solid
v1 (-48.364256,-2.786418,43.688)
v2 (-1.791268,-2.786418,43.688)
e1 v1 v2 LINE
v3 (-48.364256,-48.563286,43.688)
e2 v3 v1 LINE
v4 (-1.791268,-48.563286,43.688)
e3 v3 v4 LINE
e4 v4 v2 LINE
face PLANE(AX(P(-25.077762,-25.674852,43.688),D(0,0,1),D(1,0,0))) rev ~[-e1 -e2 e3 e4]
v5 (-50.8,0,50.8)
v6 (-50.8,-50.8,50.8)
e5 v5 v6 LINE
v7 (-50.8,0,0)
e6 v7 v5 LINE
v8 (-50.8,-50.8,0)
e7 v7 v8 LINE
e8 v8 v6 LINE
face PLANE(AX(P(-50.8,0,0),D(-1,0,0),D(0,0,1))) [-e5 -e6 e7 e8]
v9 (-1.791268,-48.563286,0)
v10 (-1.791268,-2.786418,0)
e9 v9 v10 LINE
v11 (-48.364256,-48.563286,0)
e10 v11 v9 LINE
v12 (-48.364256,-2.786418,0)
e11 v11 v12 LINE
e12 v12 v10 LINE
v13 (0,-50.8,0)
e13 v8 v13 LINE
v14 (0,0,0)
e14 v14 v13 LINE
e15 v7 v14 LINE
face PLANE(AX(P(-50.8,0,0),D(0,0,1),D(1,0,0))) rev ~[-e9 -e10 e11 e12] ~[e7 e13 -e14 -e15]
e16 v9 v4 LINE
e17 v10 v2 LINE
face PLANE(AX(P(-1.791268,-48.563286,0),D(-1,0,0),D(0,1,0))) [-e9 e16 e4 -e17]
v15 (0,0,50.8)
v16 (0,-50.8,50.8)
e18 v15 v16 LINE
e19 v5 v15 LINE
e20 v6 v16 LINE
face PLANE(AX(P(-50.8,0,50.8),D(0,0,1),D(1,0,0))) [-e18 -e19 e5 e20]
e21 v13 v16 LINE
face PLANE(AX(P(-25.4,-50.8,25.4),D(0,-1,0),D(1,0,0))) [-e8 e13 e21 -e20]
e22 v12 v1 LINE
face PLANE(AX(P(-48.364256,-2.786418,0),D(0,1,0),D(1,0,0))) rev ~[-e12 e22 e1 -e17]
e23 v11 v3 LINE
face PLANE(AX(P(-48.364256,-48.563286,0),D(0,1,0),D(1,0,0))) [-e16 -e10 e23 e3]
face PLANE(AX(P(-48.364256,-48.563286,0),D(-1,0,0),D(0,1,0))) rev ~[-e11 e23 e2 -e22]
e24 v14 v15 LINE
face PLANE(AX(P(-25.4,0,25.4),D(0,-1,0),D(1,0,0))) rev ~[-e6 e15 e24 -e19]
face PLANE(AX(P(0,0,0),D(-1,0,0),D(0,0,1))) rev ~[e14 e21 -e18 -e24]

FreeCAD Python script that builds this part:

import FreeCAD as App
import Part
import Sketcher

V = App.Vector
Q = App.Units.Quantity

doc = App.newDocument("Part")
body = doc.addObject("PartDesign::Body", "Body")

# Sketch on XZ plane
sketch1 = doc.addObject("Sketcher::SketchObject", "Sketch")
body.addObject(sketch1)
sketch1.AttachmentSupport = (doc.XZ_Plane, [""])
sketch1.MapMode = "FlatFace"
sketch1.addGeometry([
    Part.LineSegment(V(-51, 51, 0), V(-51, 0, 0)),
    Part.LineSegment(V(-51, 0, 0), V(0, 0, 0)),
    Part.LineSegment(V(0, 0, 0), V(0, 51, 0)),
    Part.LineSegment(V(0, 51, 0), V(-51, 51, 0)),
], False)
sketch1.addConstraint([
    Sketcher.Constraint("Coincident", 0, 2, 1, 1),
    Sketcher.Constraint("Coincident", 1, 2, 2, 1),
    Sketcher.Constraint("Coincident", 2, 2, 3, 1),
    Sketcher.Constraint("Coincident", 3, 2, 0, 1),
    Sketcher.Constraint("Vertical", 0),
    Sketcher.Constraint("Horizontal", 1),
    Sketcher.Constraint("Vertical", 2),
    Sketcher.Constraint("Horizontal", 3),
    Sketcher.Constraint("Coincident", 1, 2, -1, 1),
    Sketcher.Constraint("Equal", 3, 0),
    Sketcher.Constraint("DistanceX", 1, 1, 1, 2, Q("2 in")),
])
pad1 = doc.addObject("PartDesign::Pad", "Pad")
body.addObject(pad1)
pad1.Profile = sketch1
pad1.Length = Q("2 in")

# Sketch on XY plane
sketch2 = doc.addObject("Sketcher::SketchObject", "Sketch001")
body.addObject(sketch2)
sketch2.AttachmentSupport = (doc.XY_Plane, [""])
sketch2.MapMode = "FlatFace"
sketch2.addGeometry([
    Part.LineSegment(V(-48, -3, 0), V(-48, -49, 0)),
    Part.LineSegment(V(-48, -49, 0), V(-2, -49, 0)),
    Part.LineSegment(V(-2, -49, 0), V(-2, -3, 0)),
    Part.LineSegment(V(-2, -3, 0), V(-48, -3, 0)),
], False)
sketch2.addConstraint([
    Sketcher.Constraint("Coincident", 0, 2, 1, 1),
    Sketcher.Constraint("Coincident", 1, 2, 2, 1),
    Sketcher.Constraint("Coincident", 2, 2, 3, 1),
    Sketcher.Constraint("Coincident", 3, 2, 0, 1),
    Sketcher.Constraint("Vertical", 0),
    Sketcher.Constraint("Horizontal", 1),
    Sketcher.Constraint("Vertical", 2),
    Sketcher.Constraint("Horizontal", 3),
    Sketcher.Constraint("DistanceY", 0, 2, 0, 1, 45.776869),
    Sketcher.Constraint("DistanceX", 1, 1, 1, 2, 46.572988),
    Sketcher.Constraint("DistanceX", 1, 2, -1, 1, 1.791268),
    Sketcher.Constraint("DistanceY", 0, 2, -1, 1, 48.563286),
])
pocket1 = doc.addObject("PartDesign::Pocket", "Pocket")
body.addObject(pocket1)
pocket1.Profile = sketch2
pocket1.Length = Q("1.72 in")
pocket1.Reversed = True

doc.recompute()
